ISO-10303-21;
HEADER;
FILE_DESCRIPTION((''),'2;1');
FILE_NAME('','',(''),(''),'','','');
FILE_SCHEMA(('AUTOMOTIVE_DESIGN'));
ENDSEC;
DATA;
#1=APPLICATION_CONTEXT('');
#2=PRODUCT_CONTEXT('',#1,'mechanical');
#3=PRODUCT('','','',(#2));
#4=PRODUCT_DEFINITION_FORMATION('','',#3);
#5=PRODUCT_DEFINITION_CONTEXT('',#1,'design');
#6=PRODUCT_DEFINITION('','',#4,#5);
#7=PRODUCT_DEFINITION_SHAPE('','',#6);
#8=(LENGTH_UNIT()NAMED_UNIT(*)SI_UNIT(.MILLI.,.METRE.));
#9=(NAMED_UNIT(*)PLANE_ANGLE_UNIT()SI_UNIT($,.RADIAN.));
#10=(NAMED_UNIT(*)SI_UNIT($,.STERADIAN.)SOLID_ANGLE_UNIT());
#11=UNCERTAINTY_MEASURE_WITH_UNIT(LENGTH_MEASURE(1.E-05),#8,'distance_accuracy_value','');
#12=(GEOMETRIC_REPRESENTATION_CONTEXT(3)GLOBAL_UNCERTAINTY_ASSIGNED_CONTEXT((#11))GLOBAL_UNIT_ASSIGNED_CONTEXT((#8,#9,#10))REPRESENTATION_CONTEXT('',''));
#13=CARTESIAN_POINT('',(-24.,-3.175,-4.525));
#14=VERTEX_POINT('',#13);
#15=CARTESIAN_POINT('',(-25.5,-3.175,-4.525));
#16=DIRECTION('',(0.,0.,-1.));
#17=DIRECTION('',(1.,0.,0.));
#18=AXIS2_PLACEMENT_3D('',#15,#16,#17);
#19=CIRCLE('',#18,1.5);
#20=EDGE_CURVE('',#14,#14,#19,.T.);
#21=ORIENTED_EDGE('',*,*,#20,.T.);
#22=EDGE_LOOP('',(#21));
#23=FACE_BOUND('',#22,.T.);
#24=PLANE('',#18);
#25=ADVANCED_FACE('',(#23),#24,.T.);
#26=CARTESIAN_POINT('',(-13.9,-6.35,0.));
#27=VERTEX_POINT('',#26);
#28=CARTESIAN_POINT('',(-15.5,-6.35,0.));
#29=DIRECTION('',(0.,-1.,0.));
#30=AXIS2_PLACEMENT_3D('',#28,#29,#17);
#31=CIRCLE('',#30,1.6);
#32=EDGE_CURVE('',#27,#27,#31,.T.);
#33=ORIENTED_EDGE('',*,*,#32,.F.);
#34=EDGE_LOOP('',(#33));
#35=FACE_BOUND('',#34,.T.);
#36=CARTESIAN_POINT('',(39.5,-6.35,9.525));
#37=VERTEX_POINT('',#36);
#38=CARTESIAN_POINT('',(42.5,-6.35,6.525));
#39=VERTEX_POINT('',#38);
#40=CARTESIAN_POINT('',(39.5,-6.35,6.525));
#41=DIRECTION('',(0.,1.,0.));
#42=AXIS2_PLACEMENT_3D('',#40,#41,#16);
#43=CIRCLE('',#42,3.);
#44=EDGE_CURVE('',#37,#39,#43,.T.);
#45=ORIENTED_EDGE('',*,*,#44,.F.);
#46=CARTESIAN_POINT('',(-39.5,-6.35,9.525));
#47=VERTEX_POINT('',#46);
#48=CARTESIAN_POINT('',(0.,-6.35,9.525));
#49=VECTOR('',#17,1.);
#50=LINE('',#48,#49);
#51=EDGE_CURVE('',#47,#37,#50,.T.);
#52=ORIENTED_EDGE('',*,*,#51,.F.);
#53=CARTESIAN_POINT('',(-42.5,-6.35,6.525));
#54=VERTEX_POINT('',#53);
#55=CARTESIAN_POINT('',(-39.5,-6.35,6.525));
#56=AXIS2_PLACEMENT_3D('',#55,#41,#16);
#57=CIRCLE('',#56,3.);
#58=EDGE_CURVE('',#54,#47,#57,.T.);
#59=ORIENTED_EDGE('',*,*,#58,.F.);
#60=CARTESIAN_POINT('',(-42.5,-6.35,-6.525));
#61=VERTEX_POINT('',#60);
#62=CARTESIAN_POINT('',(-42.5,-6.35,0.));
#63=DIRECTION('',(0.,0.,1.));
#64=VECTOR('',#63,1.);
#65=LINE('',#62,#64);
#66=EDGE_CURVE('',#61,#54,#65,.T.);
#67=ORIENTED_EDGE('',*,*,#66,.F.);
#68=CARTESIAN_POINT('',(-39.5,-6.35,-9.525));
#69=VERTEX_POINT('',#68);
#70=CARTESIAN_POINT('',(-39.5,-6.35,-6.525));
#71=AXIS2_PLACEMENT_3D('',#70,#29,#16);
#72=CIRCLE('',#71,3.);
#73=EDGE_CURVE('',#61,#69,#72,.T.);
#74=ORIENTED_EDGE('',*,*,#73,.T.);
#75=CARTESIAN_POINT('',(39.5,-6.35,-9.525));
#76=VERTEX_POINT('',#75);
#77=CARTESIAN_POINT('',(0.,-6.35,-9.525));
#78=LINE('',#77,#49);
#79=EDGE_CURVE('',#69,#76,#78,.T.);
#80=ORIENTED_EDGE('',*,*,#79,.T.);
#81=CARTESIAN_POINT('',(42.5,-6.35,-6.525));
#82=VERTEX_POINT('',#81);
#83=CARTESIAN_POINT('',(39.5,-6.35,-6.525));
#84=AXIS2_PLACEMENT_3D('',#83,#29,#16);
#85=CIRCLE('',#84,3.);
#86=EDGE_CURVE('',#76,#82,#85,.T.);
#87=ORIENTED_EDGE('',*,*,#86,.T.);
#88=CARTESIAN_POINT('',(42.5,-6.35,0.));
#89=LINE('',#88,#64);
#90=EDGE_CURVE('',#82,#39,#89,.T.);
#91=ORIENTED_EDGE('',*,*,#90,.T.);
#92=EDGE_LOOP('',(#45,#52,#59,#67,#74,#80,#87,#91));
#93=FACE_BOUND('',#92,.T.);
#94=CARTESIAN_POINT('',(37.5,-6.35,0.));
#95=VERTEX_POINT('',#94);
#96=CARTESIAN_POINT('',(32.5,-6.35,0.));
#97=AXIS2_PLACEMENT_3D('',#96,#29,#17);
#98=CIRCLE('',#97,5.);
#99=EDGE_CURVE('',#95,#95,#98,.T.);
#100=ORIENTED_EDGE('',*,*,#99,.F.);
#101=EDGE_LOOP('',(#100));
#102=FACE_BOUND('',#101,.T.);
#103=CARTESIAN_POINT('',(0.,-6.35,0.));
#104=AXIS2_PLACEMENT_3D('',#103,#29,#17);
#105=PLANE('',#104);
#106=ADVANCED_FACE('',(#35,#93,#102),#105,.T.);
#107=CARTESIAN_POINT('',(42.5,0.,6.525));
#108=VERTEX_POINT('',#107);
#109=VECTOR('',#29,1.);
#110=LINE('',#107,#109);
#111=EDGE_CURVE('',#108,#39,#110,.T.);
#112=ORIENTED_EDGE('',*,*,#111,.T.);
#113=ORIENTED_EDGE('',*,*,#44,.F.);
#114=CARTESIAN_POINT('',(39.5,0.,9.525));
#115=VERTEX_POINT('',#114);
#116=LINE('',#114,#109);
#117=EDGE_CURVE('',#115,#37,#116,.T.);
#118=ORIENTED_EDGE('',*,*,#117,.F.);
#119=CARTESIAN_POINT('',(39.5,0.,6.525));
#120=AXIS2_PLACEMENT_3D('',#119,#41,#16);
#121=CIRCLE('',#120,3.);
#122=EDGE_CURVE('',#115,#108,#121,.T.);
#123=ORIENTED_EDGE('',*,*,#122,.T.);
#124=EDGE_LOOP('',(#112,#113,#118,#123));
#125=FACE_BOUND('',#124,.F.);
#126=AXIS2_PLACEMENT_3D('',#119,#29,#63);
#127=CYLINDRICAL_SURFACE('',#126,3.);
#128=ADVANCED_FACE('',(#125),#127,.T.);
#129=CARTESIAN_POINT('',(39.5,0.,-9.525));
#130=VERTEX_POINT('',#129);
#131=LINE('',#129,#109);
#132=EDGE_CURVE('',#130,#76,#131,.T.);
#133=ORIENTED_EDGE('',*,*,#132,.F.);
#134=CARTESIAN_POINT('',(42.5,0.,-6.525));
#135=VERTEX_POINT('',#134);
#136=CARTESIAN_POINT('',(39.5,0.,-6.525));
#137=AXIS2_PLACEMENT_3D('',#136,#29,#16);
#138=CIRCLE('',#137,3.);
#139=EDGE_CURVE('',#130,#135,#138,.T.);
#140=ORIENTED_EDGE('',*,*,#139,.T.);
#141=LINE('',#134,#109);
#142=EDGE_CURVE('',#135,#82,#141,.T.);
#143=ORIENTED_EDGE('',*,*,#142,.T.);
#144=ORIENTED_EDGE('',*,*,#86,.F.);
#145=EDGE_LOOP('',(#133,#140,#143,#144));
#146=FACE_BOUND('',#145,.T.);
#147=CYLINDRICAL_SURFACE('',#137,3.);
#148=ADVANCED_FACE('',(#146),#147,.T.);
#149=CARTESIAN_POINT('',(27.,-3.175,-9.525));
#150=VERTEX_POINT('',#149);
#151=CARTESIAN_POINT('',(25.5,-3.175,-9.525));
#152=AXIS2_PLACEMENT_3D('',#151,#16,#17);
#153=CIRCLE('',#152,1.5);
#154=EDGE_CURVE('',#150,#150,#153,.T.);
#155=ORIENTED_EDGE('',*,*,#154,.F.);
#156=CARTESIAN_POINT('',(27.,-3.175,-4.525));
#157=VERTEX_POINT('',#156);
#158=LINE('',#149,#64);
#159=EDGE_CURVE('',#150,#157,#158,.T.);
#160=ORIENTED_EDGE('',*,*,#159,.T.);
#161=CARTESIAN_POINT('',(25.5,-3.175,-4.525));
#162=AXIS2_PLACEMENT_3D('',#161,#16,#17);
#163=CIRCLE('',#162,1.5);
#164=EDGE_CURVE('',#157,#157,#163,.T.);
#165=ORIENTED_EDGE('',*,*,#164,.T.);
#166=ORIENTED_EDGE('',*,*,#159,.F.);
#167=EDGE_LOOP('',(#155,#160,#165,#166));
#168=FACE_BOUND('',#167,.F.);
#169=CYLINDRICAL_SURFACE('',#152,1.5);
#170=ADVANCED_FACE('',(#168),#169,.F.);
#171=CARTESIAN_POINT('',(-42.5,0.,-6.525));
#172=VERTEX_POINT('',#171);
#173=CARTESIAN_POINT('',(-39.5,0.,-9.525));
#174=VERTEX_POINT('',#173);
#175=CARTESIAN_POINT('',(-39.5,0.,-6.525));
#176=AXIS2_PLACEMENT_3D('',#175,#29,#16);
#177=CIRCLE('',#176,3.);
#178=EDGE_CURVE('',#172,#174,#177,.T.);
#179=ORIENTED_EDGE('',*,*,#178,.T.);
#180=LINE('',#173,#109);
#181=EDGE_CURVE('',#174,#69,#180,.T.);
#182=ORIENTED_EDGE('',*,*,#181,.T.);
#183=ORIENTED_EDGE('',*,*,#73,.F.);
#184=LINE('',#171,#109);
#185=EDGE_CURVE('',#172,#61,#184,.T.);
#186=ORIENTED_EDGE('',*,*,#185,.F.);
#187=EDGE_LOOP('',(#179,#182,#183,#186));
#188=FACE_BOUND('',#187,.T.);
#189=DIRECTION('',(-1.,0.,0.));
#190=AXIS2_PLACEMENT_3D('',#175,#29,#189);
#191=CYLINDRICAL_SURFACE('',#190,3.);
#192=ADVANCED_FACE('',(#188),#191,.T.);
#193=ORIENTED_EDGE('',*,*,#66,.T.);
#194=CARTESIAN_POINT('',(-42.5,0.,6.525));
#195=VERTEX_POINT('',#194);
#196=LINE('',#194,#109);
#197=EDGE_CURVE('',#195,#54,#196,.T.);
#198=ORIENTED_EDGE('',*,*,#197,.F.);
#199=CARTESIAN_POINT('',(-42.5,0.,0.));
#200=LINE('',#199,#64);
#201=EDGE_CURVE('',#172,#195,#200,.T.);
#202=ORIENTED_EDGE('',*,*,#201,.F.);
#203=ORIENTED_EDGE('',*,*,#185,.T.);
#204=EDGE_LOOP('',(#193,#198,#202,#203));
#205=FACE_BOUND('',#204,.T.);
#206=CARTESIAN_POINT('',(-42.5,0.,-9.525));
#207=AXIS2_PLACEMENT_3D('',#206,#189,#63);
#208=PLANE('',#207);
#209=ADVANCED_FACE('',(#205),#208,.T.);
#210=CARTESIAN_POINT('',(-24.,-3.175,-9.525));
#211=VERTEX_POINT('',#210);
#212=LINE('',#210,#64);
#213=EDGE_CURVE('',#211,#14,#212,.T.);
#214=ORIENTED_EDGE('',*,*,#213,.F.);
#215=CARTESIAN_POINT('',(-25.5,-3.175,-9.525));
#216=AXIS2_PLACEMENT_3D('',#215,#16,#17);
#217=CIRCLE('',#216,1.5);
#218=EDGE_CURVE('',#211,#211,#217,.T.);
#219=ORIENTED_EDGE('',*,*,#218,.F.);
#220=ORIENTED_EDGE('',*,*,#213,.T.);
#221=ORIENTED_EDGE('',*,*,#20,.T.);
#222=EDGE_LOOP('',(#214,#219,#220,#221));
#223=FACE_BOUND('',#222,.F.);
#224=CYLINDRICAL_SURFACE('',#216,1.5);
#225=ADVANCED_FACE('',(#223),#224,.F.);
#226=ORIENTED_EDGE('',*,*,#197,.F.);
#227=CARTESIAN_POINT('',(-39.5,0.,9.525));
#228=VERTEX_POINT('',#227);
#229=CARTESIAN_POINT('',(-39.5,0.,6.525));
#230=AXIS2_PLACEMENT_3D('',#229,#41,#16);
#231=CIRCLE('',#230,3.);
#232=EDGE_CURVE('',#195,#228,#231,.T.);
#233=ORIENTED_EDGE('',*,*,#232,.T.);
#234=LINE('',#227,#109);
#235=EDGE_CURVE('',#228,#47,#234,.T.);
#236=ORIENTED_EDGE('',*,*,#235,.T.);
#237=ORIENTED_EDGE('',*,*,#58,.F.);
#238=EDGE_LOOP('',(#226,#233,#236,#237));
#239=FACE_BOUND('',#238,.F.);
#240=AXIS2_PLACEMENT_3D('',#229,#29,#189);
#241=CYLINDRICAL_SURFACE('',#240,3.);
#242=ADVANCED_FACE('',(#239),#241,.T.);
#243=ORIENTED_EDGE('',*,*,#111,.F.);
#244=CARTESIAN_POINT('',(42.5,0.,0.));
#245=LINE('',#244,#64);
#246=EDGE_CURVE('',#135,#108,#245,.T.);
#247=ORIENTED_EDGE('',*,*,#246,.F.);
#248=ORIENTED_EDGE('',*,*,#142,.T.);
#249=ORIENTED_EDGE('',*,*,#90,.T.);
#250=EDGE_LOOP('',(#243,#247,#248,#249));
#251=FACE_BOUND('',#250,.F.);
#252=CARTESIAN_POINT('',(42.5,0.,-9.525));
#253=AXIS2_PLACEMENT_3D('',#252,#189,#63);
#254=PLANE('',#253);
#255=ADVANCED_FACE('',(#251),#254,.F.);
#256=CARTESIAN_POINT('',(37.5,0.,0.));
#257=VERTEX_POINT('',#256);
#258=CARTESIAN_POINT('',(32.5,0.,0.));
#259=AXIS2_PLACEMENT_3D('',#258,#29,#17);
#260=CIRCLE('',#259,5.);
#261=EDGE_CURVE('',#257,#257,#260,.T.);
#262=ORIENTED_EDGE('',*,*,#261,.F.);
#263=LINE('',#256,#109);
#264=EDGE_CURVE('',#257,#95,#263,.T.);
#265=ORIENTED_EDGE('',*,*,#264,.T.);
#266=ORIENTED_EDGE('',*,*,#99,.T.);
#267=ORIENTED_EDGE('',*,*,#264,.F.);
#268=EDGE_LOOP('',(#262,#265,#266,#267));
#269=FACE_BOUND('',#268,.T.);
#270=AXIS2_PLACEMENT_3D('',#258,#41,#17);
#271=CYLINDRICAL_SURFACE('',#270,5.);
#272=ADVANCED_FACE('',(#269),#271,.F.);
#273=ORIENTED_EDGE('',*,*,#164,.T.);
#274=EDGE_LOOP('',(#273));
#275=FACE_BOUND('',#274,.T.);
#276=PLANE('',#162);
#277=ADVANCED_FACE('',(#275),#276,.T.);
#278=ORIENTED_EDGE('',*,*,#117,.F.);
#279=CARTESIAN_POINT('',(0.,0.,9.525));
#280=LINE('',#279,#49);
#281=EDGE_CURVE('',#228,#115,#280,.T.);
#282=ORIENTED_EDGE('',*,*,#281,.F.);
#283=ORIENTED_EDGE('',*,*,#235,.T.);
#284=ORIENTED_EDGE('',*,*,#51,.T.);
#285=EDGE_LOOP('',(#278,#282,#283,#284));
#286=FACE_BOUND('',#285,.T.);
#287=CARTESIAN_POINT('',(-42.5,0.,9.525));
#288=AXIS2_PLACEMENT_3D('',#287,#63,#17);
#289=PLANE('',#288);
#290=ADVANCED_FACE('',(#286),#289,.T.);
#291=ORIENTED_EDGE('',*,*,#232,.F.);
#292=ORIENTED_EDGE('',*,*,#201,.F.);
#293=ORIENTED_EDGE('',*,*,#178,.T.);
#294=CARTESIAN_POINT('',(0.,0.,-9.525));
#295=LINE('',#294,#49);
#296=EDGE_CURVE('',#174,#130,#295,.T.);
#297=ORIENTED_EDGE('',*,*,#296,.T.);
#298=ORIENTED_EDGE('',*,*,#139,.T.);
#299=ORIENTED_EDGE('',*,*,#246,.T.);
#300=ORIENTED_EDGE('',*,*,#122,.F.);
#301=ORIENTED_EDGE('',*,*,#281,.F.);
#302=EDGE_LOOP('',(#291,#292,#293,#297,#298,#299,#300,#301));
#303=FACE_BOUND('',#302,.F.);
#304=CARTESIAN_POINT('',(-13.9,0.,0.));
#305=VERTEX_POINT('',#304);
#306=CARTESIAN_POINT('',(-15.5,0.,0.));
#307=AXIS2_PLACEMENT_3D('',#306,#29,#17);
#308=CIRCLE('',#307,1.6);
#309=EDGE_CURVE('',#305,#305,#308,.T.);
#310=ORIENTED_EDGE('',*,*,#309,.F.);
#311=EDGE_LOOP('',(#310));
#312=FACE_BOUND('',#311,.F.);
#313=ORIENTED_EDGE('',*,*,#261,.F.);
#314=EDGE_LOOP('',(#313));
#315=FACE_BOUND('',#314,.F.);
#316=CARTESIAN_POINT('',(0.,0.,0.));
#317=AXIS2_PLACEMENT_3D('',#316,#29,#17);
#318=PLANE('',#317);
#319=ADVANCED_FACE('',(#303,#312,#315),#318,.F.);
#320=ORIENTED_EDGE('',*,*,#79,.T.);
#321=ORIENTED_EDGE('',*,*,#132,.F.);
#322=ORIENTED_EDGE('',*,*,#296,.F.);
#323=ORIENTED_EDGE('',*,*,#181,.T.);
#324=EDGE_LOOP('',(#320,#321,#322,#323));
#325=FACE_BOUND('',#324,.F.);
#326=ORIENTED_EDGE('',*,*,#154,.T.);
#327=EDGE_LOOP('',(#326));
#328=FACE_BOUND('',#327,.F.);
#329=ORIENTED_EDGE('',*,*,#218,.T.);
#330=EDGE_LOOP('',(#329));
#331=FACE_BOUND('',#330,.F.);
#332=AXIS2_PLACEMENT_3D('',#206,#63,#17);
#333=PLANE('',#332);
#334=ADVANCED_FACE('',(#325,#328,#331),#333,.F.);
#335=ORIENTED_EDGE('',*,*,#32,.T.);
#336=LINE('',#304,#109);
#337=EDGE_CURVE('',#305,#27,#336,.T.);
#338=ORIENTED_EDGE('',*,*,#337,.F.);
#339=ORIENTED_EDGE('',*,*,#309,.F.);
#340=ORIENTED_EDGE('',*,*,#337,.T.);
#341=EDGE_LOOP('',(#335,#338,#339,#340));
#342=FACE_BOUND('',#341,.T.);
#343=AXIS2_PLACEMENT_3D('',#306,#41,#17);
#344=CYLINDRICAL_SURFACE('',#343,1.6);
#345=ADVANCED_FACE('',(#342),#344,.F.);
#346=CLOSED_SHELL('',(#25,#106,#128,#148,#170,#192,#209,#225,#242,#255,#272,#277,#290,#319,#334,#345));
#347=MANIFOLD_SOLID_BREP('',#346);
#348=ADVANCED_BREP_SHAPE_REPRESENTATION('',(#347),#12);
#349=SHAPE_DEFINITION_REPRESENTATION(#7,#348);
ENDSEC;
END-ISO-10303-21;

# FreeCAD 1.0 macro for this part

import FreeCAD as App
import Part
import Sketcher
Q = App.Units.Quantity


def edges_at(feature, points):
    """Names of the edges that pass closest to the given points."""
    edges = feature.Shape.Edges
    near = lambda p: min(range(len(edges)), key=lambda i: edges[i].distToShape(Part.Vertex(*p))[0])
    return sorted({f"Edge{near(p) + 1}" for p in points})


def add_polygon(sketch, points):
    """Adds a closed chain of lines whose ends are joined by coincident constraints."""
    first, n = sketch.GeometryCount, len(points)
    for a, b in zip(points, points[1:] + points[:1]):
        sketch.addGeometry(Part.LineSegment(App.Vector(*a, 0), App.Vector(*b, 0)), False)
    for i in range(n):
        sketch.addConstraint(Sketcher.Constraint("Coincident", first + i, 2, first + (i + 1) % n, 1))

doc = App.newDocument("Part")
params = doc.addObject("Spreadsheet::Sheet", "Params")
for row, (alias, value) in enumerate([
    ("sketch1_diameter", "10 mm"),
    ("sketch1_diameter2", "3.2 mm"),
    ("sketch1_width", "85 mm"),
    ("sketch1_height", "19.05 mm"),
    ("pad1_length", "6.35 mm"),
    ("sketch2_diameter", "3 mm"),
    ("pocket1_length", "5 mm"),
    ("fillet_radius", "3 mm"),
], start=1):
    params.set(f"A{row}", alias)
    params.set(f"B{row}", "=" + value)
    params.setAlias(f"B{row}", alias)

body = doc.addObject("PartDesign::Body", "Body")

# Sketch on XZ plane
sketch1 = doc.addObject("Sketcher::SketchObject", "Sketch")
body.addObject(sketch1)
sketch1.AttachmentSupport = (doc.XZ_Plane, [""])
sketch1.MapMode = "FlatFace"
add_polygon(sketch1, [(-42.5, 9.5), (-42.5, -9.5), (42.5, -9.5), (42.5, 9.5)])  # lines 0-3
sketch1.addGeometry(Part.Circle(App.Vector(-15.5, 0, 0), App.Vector(0, 0, 1), 1.6), False)  # 4
sketch1.addGeometry(Part.Circle(App.Vector(32.5, 0, 0), App.Vector(0, 0, 1), 5), False)  # 5
sketch1.addConstraint(Sketcher.Constraint("Vertical", 0))
sketch1.addConstraint(Sketcher.Constraint("Horizontal", 1))
sketch1.addConstraint(Sketcher.Constraint("Vertical", 2))
sketch1.addConstraint(Sketcher.Constraint("Horizontal", 3))
sketch1.addConstraint(Sketcher.Constraint("Symmetric", 0, 2, 2, 2, -1, 1))
sketch1.addConstraint(Sketcher.Constraint("PointOnObject", 4, 3, -1))
sketch1.addConstraint(Sketcher.Constraint("PointOnObject", 5, 3, -1))
sketch1.addConstraint(Sketcher.Constraint("Diameter", 5, Q("10 mm")))
sketch1.addConstraint(Sketcher.Constraint("Diameter", 4, Q("3.2 mm")))
sketch1.addConstraint(Sketcher.Constraint("DistanceX", 1, 1, 1, 2, Q("85 mm")))
sketch1.addConstraint(Sketcher.Constraint("DistanceX", 4, 3, 5, 3, Q("48 mm")))
sketch1.addConstraint(Sketcher.Constraint("DistanceX", 0, 2, 4, 3, Q("27 mm")))
sketch1.addConstraint(Sketcher.Constraint("DistanceY", 0, 2, 0, 1, Q("19.05 mm")))
sketch1.setExpression("Constraints[11]", "Params.sketch1_diameter")
sketch1.setExpression("Constraints[12]", "Params.sketch1_diameter2")
sketch1.setExpression("Constraints[13]", "Params.sketch1_width")
sketch1.setExpression("Constraints[16]", "Params.sketch1_height")
pad1 = doc.addObject("PartDesign::Pad", "Pad")
body.addObject(pad1)
pad1.Profile = sketch1
pad1.setExpression("Length", "Params.pad1_length")

# Sketch on XY plane
sketch2 = doc.addObject("Sketcher::SketchObject", "Sketch001")
body.addObject(sketch2)
sketch2.AttachmentSupport = (doc.XY_Plane, [""])
sketch2.MapMode = "FlatFace"
sketch2.AttachmentOffset = App.Placement(App.Vector(0, 0, -9.525), App.Rotation())
sketch2.addGeometry(Part.Circle(App.Vector(-25.5, -3.2, 0), App.Vector(0, 0, 1), 1.5), False)
sketch2.addGeometry(Part.Circle(App.Vector(25.5, -3.2, 0), App.Vector(0, 0, 1), 1.5), False)
sketch2.addConstraint(Sketcher.Constraint("Equal", 0, 1))
sketch2.addConstraint(Sketcher.Constraint("Symmetric", 0, 3, 1, 3, -2))
sketch2.addConstraint(Sketcher.Constraint("Diameter", 0, Q("3 mm")))
sketch2.addConstraint(Sketcher.Constraint("DistanceX", 0, 3, 1, 3, Q("51 mm")))
sketch2.addConstraint(Sketcher.Constraint("DistanceY", 0, 3, -1, 1, Q("3.175 mm")))
sketch2.setExpression("Constraints[2]", "Params.sketch2_diameter")
pocket1 = doc.addObject("PartDesign::Pocket", "Pocket")
body.addObject(pocket1)
pocket1.Profile = sketch2
pocket1.setExpression("Length", "Params.pocket1_length")
pocket1.Reversed = True
doc.recompute()

fillet = doc.addObject("PartDesign::Fillet", "Fillet")
body.addObject(fillet)
fillet.Base = (pocket1, edges_at(pocket1, [
    (42.5, -3.175, 9.525),
    (42.5, -3.175, -9.525),
    (-42.5, -3.175, -9.525),
    (-42.5, -3.175, 9.525),
]))
fillet.setExpression("Radius", "Params.fillet_radius")

doc.recompute()
